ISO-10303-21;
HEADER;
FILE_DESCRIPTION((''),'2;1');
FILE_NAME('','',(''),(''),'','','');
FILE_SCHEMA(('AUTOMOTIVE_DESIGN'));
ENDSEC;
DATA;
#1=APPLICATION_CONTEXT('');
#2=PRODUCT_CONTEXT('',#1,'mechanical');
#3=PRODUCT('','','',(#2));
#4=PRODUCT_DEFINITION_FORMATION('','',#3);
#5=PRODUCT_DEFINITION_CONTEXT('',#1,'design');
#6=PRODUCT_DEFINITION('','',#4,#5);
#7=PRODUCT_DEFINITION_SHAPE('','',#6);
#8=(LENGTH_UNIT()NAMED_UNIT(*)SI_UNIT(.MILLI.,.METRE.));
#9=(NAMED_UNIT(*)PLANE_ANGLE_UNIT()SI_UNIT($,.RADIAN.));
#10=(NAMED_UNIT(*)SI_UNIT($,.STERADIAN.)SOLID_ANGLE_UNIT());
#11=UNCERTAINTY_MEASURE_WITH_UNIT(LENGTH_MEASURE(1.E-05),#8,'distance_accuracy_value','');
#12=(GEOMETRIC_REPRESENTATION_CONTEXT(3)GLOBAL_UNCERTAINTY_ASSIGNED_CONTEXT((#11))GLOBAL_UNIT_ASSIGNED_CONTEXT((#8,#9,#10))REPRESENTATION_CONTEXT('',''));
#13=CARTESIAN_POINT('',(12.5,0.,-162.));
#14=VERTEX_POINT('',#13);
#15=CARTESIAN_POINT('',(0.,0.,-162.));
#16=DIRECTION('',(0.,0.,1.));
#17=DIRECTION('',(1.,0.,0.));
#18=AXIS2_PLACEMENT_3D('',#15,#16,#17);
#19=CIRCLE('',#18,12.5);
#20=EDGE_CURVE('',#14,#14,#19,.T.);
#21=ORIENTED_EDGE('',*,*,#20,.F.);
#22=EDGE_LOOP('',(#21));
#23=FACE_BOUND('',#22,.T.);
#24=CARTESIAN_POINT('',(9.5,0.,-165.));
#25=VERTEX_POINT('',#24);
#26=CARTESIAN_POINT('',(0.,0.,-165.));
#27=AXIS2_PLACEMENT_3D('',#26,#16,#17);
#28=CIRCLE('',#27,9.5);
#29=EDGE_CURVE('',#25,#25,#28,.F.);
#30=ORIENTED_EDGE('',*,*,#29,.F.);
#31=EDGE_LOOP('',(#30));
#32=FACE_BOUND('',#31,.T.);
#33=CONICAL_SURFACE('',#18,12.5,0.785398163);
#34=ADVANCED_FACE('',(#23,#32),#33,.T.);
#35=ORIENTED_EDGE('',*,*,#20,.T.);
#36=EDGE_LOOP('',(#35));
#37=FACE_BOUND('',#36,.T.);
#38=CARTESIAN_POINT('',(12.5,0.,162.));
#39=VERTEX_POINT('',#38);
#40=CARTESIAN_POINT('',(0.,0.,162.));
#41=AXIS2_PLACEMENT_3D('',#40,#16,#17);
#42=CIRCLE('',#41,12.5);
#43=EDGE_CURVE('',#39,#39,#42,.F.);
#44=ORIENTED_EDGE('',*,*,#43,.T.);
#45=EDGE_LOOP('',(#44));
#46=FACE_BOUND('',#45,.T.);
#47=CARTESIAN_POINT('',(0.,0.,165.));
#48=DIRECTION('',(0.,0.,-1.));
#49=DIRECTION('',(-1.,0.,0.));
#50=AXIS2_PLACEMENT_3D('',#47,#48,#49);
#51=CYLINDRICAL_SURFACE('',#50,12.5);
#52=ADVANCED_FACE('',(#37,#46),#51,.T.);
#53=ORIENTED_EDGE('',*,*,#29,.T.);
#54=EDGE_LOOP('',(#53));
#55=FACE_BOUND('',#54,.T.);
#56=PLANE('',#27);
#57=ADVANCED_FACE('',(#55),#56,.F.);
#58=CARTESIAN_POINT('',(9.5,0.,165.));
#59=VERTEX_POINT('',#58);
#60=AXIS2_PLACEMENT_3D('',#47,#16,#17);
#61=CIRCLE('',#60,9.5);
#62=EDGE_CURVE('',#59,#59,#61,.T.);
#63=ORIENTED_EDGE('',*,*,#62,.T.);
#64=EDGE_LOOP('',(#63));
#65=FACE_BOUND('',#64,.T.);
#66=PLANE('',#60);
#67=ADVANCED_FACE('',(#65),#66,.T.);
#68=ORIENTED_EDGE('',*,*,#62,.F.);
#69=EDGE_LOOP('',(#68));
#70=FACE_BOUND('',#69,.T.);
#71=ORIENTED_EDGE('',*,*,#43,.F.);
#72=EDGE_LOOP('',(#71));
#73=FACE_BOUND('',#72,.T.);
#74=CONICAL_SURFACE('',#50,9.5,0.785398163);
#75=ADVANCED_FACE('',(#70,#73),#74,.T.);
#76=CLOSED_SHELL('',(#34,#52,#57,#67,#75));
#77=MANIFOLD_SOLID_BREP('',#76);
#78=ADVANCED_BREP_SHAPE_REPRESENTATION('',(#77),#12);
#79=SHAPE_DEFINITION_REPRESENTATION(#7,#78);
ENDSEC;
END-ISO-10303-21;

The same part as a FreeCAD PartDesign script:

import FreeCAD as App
import Part
import Sketcher

V = App.Vector


def edges_at(feature, points):
    """Names of the edges that pass closest to the given points."""
    edges = feature.Shape.Edges
    near = lambda p: min(range(len(edges)), key=lambda i: edges[i].distToShape(Part.Vertex(*p))[0])
    return sorted({f"Edge{near(p) + 1}" for p in points})

doc = App.newDocument("Part")
body = doc.addObject("PartDesign::Body", "Body")

sketch1 = doc.addObject("Sketcher::SketchObject", "Sketch")
body.addObject(sketch1)
sketch1.AttachmentSupport = (doc.XY_Plane, [""])
sketch1.MapMode = "FlatFace"
sketch1.addGeometry(Part.Circle(V(0, 0, 0), V(0, 0, 1), 12), False)
sketch1.addConstraint(Sketcher.Constraint("Coincident", 0, 3, -1, 1))
sketch1.addConstraint(Sketcher.Constraint("Diameter", 0, 25.0))
pad1 = doc.addObject("PartDesign::Pad", "Pad")
body.addObject(pad1)
pad1.Profile = sketch1
pad1.Length = 330
pad1.Midplane = True
doc.recompute()

chamfer = doc.addObject("PartDesign::Chamfer", "Chamfer")
body.addObject(chamfer)
chamfer.Base = (pad1, edges_at(pad1, [(-12.5, 0, -165), (-12.5, 0, 165)]))
chamfer.Size = 3

doc.recompute()
